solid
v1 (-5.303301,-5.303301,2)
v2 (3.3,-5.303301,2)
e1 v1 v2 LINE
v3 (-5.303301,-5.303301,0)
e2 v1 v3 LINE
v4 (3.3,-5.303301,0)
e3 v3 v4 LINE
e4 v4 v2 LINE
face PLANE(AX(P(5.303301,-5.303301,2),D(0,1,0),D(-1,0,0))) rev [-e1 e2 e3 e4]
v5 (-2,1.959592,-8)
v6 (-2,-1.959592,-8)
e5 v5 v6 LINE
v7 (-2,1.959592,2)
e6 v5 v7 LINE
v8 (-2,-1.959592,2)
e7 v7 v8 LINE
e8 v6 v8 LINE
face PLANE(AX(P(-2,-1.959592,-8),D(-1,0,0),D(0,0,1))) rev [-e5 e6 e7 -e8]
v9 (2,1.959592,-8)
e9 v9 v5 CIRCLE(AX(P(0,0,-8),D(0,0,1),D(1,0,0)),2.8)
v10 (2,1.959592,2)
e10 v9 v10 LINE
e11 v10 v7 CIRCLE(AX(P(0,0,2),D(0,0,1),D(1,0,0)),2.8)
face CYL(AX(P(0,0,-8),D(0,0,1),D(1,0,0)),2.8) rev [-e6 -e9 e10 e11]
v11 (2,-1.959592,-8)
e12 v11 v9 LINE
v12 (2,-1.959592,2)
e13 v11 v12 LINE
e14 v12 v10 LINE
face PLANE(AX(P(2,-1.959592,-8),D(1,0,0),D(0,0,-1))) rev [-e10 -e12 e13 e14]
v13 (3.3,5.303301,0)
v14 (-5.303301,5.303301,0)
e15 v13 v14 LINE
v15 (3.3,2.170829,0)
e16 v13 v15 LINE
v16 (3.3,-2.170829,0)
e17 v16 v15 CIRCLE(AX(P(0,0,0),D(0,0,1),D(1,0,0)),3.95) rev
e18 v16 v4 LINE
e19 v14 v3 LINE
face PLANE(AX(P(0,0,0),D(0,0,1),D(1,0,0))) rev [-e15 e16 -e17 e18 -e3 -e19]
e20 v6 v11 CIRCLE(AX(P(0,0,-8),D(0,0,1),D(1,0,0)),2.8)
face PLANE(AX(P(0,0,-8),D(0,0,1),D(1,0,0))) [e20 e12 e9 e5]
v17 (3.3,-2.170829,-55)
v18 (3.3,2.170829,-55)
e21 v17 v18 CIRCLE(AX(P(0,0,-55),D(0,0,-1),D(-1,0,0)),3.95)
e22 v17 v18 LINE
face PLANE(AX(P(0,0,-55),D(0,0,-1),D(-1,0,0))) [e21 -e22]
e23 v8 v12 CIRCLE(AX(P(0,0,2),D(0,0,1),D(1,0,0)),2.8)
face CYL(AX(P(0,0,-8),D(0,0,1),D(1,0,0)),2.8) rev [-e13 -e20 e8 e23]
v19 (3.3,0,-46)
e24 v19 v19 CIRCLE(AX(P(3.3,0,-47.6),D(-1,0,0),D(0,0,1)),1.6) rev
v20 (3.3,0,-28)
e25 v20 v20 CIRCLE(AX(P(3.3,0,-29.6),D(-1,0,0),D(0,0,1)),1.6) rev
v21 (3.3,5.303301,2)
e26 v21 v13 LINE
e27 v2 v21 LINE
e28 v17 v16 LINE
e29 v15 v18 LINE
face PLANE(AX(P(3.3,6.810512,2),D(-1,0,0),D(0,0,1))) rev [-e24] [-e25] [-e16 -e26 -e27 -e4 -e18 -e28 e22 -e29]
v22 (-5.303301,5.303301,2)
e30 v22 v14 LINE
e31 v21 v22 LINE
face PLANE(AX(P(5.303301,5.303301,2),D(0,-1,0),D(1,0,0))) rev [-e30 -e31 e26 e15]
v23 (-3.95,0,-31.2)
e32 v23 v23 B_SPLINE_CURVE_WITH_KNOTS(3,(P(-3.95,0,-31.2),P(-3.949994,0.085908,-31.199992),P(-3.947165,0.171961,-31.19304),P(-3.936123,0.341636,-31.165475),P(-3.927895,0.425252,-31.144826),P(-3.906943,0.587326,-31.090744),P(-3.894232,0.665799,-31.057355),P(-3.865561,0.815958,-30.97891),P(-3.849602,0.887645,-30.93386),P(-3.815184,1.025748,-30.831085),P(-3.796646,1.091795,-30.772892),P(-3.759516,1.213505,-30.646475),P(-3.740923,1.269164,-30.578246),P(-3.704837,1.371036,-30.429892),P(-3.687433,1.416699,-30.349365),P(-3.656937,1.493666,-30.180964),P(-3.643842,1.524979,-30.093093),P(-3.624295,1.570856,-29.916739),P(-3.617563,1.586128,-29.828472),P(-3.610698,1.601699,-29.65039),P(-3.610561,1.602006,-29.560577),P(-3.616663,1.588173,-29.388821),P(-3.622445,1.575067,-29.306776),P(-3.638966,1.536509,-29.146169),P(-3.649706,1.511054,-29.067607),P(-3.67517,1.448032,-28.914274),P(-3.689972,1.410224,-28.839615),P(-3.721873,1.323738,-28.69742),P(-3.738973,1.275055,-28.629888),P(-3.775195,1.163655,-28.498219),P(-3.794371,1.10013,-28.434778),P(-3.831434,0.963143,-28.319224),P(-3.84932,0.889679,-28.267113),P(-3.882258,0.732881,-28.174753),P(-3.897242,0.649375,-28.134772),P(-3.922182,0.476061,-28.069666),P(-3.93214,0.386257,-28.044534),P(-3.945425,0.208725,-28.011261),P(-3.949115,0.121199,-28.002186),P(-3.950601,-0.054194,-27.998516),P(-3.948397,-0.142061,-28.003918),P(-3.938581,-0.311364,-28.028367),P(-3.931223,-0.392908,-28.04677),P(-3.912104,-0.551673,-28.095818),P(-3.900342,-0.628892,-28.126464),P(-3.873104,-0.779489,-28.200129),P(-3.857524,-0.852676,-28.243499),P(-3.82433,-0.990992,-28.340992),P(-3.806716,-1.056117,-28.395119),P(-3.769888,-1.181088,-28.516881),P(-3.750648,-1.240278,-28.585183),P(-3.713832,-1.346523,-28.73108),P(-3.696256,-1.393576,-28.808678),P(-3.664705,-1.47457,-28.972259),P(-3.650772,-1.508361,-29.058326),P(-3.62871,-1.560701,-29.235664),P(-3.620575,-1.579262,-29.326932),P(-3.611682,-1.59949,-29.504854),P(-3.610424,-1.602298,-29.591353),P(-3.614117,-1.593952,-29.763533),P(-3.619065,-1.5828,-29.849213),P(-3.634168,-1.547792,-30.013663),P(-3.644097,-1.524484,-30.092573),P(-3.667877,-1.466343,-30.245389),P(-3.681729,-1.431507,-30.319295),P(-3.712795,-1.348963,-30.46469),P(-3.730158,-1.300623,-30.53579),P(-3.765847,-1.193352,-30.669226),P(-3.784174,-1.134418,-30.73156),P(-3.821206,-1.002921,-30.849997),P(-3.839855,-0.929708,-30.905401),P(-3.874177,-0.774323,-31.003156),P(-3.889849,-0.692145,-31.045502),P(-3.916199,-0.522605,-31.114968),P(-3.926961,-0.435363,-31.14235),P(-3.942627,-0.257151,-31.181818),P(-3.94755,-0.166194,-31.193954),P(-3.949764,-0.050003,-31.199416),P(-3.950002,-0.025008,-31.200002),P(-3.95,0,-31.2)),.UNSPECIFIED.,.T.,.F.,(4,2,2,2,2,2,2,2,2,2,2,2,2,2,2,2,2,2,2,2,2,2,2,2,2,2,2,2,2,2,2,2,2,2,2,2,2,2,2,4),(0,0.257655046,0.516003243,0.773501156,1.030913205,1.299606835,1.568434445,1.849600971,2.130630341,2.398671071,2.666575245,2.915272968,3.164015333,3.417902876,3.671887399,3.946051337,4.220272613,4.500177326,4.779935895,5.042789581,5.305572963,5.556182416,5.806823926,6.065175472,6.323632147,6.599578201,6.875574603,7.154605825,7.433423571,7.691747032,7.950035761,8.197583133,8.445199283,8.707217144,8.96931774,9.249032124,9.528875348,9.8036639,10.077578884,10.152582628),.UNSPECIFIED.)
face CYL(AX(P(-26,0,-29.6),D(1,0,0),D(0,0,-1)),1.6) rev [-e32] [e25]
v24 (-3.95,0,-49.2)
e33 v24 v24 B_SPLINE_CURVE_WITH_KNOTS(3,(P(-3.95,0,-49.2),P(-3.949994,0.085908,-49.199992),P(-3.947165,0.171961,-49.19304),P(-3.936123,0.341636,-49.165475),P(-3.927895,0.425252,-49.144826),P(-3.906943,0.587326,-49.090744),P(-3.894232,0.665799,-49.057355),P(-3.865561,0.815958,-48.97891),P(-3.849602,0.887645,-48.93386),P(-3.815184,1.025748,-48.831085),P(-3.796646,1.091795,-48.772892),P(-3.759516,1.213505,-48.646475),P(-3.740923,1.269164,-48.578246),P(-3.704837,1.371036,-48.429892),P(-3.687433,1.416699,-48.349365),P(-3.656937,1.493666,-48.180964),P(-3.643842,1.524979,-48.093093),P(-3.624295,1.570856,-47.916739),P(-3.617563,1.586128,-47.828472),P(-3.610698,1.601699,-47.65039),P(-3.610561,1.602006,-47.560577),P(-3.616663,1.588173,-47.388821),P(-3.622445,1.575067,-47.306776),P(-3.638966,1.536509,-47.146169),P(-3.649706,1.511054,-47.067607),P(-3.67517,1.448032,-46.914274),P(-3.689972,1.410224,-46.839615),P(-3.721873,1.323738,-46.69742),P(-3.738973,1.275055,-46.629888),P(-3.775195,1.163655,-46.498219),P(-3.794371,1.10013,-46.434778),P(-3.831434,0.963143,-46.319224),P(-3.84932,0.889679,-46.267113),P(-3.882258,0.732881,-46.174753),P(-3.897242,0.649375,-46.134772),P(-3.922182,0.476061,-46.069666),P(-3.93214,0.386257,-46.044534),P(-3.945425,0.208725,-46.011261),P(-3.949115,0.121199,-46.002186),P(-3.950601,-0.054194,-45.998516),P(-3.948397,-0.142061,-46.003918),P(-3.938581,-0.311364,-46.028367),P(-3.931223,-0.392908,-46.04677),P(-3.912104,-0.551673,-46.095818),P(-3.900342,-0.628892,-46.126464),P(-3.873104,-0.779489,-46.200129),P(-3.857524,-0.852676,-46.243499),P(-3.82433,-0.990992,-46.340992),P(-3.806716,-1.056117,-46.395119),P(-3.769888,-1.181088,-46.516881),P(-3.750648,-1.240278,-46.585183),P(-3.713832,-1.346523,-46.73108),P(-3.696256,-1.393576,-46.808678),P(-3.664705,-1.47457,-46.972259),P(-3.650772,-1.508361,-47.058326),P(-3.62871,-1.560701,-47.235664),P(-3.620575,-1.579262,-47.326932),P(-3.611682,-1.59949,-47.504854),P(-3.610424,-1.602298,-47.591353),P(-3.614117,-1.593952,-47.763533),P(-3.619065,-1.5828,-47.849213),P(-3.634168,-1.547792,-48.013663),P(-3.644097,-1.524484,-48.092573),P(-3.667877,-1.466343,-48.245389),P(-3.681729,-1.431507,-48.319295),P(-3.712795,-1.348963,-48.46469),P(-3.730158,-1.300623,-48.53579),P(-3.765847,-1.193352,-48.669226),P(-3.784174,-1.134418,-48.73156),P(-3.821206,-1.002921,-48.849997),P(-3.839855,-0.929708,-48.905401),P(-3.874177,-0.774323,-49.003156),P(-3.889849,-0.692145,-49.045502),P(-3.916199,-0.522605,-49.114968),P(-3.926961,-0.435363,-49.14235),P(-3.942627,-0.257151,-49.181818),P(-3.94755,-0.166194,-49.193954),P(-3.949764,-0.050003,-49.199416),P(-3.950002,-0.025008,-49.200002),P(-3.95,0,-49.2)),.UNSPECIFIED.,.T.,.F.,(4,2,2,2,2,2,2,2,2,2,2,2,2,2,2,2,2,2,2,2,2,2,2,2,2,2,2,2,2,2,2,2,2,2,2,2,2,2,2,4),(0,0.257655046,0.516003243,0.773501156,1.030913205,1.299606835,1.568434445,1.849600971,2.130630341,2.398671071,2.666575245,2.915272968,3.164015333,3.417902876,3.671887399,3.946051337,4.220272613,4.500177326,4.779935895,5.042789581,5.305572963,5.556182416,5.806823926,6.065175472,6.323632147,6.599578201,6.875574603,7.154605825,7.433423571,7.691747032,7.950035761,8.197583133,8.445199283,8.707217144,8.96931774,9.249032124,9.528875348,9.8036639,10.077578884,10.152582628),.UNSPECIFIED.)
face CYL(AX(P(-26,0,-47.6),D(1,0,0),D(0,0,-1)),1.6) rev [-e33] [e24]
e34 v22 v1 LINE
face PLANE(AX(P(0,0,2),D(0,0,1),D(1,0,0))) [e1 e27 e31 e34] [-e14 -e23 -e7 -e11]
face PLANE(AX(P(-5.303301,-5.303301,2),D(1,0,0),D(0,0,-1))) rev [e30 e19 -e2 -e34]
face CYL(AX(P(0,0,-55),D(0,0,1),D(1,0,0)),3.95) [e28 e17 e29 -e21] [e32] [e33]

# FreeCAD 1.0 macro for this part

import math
import FreeCAD as App
import Part
import Sketcher
from FreeCAD import Vector

doc = App.newDocument("Part")
body = doc.addObject("PartDesign::Body", "Body")

# Sketch on XY plane
sketch1 = body.newObject("Sketcher::SketchObject", "Sketch")
sketch1.AttachmentSupport = (doc.getObject("XY_Plane"), [""])
sketch1.MapMode = "FlatFace"
sketch1.addGeometry([
    Part.LineSegment(Vector(-5, 5, 0), Vector(-5, -5, 0)),
    Part.LineSegment(Vector(-5, -5, 0), Vector(5, -5, 0)),
    Part.LineSegment(Vector(5, -5, 0), Vector(5, 5, 0)),
    Part.LineSegment(Vector(5, 5, 0), Vector(-5, 5, 0)),
], False)
sketch1.addConstraint([
    Sketcher.Constraint("Coincident", 0, 2, 1, 1),
    Sketcher.Constraint("Coincident", 1, 2, 2, 1),
    Sketcher.Constraint("Coincident", 2, 2, 3, 1),
    Sketcher.Constraint("Coincident", 3, 2, 0, 1),
    Sketcher.Constraint("Vertical", 0),
    Sketcher.Constraint("Horizontal", 1),
    Sketcher.Constraint("Vertical", 2),
    Sketcher.Constraint("Horizontal", 3),
    Sketcher.Constraint("Symmetric", 0, 2, 2, 2, -1, 1),
    Sketcher.Constraint("Equal", 3, 0),
    Sketcher.Constraint("DistanceX", 1, 1, 1, 2, 10.606602),
])
pad1 = body.newObject("PartDesign::Pad", "Pad")
pad1.Profile = sketch1
pad1.Length = 2

# Sketch on XY plane
sketch2 = body.newObject("Sketcher::SketchObject", "Sketch001")
sketch2.AttachmentSupport = (doc.getObject("XY_Plane"), [""])
sketch2.MapMode = "FlatFace"
sketch2.addGeometry(Part.Circle(Vector(0, 0, 0), Vector(0, 0, 1), 4), False)
sketch2.addConstraint([
    Sketcher.Constraint("Coincident", 0, 3, -1, 1),
    Sketcher.Constraint("Diameter", 0, 7.9),
])
pad2 = body.newObject("PartDesign::Pad", "Pad001")
pad2.Profile = sketch2
pad2.Length = 55
pad2.Reversed = True

# Sketch on XY plane
sketch3 = body.newObject("Sketcher::SketchObject", "Sketch002")
sketch3.AttachmentSupport = (doc.getObject("XY_Plane"), [""])
sketch3.MapMode = "FlatFace"
sketch3.AttachmentOffset = App.Placement(Vector(0, 0, 2), App.Rotation())
sketch3.addGeometry([
    Part.LineSegment(Vector(-2, 2, 0), Vector(-2, -2, 0)),
    Part.ArcOfCircle(Part.Circle(Vector(0, 0, 0), Vector(0, 0, 1), 2.8), math.radians(-136), math.radians(-44)),
    Part.LineSegment(Vector(2, -2, 0), Vector(2, 2, 0)),
    Part.ArcOfCircle(Part.Circle(Vector(0, 0, 0), Vector(0, 0, 1), 2.8), math.radians(44), math.radians(136)),
], False)
sketch3.addConstraint([
    Sketcher.Constraint("Coincident", 0, 2, 1, 1),
    Sketcher.Constraint("Coincident", 1, 2, 2, 1),
    Sketcher.Constraint("Coincident", 2, 2, 3, 1),
    Sketcher.Constraint("Coincident", 3, 2, 0, 1),
    Sketcher.Constraint("Vertical", 0),
    Sketcher.Constraint("Vertical", 2),
    Sketcher.Constraint("Coincident", 1, 3, -1, 1),
    Sketcher.Constraint("Coincident", 3, 3, -1, 1),
    Sketcher.Constraint("Equal", 1, 3),
    Sketcher.Constraint("Horizontal", 0, 2, 1, 2),
    Sketcher.Constraint("Radius", 1, 2.8),
    Sketcher.Constraint("DistanceX", 0, 2, -1, 1, 2.0),
])
pocket1 = body.newObject("PartDesign::Pocket", "Pocket")
pocket1.Profile = sketch3
pocket1.Length = 10

# Sketch on YZ plane
sketch4 = body.newObject("Sketcher::SketchObject", "Sketch003")
sketch4.AttachmentSupport = (doc.getObject("YZ_Plane"), [""])
sketch4.MapMode = "FlatFace"
sketch4.addGeometry([
    Part.Circle(Vector(0, -29.6, 0), Vector(0, 0, 1), 1.6),
    Part.Circle(Vector(0, -47.6, 0), Vector(0, 0, 1), 1.6),
], False)
sketch4.addConstraint([
    Sketcher.Constraint("Equal", 0, 1),
    Sketcher.Constraint("PointOnObject", 0, 3, -2),
    Sketcher.Constraint("PointOnObject", 1, 3, -2),
    Sketcher.Constraint("Diameter", 0, 3.2),
    Sketcher.Constraint("DistanceY", 1, 3, 0, 3, 18.0),
    Sketcher.Constraint("DistanceY", 0, 3, -1, 1, 29.6),
])
pocket2 = body.newObject("PartDesign::Pocket", "Pocket001")
pocket2.Profile = sketch4
pocket2.Length = 52
pocket2.Midplane = True

# Sketch on XY plane
sketch5 = body.newObject("Sketcher::SketchObject", "Sketch004")
sketch5.AttachmentSupport = (doc.getObject("XY_Plane"), [""])
sketch5.MapMode = "FlatFace"
sketch5.AttachmentOffset = App.Placement(Vector(0, 0, -55), App.Rotation())
sketch5.addGeometry([
    Part.LineSegment(Vector(8, 7, 0), Vector(8, -7, 0)),
    Part.LineSegment(Vector(8, -7, 0), Vector(3, -7, 0)),
    Part.LineSegment(Vector(3, -7, 0), Vector(3, 7, 0)),
    Part.LineSegment(Vector(3, 7, 0), Vector(8, 7, 0)),
], False)
sketch5.addConstraint([
    Sketcher.Constraint("Coincident", 0, 2, 1, 1),
    Sketcher.Constraint("Coincident", 1, 2, 2, 1),
    Sketcher.Constraint("Coincident", 2, 2, 3, 1),
    Sketcher.Constraint("Coincident", 3, 2, 0, 1),
    Sketcher.Constraint("Vertical", 0),
    Sketcher.Constraint("Horizontal", 1),
    Sketcher.Constraint("Vertical", 2),
    Sketcher.Constraint("Horizontal", 3),
    Sketcher.Constraint("DistanceX", 1, 2, 1, 1, 5.0),
    Sketcher.Constraint("DistanceX", -1, 1, 0, 2, 8.3),
    Sketcher.Constraint("DistanceY", 0, 2, 0, 1, 13.621025),
    Sketcher.Constraint("DistanceY", 0, 2, -1, 1, 6.810512),
])
pocket3 = body.newObject("PartDesign::Pocket", "Pocket002")
pocket3.Profile = sketch5
pocket3.Type = "ThroughAll"
pocket3.Reversed = True

doc.recompute()
